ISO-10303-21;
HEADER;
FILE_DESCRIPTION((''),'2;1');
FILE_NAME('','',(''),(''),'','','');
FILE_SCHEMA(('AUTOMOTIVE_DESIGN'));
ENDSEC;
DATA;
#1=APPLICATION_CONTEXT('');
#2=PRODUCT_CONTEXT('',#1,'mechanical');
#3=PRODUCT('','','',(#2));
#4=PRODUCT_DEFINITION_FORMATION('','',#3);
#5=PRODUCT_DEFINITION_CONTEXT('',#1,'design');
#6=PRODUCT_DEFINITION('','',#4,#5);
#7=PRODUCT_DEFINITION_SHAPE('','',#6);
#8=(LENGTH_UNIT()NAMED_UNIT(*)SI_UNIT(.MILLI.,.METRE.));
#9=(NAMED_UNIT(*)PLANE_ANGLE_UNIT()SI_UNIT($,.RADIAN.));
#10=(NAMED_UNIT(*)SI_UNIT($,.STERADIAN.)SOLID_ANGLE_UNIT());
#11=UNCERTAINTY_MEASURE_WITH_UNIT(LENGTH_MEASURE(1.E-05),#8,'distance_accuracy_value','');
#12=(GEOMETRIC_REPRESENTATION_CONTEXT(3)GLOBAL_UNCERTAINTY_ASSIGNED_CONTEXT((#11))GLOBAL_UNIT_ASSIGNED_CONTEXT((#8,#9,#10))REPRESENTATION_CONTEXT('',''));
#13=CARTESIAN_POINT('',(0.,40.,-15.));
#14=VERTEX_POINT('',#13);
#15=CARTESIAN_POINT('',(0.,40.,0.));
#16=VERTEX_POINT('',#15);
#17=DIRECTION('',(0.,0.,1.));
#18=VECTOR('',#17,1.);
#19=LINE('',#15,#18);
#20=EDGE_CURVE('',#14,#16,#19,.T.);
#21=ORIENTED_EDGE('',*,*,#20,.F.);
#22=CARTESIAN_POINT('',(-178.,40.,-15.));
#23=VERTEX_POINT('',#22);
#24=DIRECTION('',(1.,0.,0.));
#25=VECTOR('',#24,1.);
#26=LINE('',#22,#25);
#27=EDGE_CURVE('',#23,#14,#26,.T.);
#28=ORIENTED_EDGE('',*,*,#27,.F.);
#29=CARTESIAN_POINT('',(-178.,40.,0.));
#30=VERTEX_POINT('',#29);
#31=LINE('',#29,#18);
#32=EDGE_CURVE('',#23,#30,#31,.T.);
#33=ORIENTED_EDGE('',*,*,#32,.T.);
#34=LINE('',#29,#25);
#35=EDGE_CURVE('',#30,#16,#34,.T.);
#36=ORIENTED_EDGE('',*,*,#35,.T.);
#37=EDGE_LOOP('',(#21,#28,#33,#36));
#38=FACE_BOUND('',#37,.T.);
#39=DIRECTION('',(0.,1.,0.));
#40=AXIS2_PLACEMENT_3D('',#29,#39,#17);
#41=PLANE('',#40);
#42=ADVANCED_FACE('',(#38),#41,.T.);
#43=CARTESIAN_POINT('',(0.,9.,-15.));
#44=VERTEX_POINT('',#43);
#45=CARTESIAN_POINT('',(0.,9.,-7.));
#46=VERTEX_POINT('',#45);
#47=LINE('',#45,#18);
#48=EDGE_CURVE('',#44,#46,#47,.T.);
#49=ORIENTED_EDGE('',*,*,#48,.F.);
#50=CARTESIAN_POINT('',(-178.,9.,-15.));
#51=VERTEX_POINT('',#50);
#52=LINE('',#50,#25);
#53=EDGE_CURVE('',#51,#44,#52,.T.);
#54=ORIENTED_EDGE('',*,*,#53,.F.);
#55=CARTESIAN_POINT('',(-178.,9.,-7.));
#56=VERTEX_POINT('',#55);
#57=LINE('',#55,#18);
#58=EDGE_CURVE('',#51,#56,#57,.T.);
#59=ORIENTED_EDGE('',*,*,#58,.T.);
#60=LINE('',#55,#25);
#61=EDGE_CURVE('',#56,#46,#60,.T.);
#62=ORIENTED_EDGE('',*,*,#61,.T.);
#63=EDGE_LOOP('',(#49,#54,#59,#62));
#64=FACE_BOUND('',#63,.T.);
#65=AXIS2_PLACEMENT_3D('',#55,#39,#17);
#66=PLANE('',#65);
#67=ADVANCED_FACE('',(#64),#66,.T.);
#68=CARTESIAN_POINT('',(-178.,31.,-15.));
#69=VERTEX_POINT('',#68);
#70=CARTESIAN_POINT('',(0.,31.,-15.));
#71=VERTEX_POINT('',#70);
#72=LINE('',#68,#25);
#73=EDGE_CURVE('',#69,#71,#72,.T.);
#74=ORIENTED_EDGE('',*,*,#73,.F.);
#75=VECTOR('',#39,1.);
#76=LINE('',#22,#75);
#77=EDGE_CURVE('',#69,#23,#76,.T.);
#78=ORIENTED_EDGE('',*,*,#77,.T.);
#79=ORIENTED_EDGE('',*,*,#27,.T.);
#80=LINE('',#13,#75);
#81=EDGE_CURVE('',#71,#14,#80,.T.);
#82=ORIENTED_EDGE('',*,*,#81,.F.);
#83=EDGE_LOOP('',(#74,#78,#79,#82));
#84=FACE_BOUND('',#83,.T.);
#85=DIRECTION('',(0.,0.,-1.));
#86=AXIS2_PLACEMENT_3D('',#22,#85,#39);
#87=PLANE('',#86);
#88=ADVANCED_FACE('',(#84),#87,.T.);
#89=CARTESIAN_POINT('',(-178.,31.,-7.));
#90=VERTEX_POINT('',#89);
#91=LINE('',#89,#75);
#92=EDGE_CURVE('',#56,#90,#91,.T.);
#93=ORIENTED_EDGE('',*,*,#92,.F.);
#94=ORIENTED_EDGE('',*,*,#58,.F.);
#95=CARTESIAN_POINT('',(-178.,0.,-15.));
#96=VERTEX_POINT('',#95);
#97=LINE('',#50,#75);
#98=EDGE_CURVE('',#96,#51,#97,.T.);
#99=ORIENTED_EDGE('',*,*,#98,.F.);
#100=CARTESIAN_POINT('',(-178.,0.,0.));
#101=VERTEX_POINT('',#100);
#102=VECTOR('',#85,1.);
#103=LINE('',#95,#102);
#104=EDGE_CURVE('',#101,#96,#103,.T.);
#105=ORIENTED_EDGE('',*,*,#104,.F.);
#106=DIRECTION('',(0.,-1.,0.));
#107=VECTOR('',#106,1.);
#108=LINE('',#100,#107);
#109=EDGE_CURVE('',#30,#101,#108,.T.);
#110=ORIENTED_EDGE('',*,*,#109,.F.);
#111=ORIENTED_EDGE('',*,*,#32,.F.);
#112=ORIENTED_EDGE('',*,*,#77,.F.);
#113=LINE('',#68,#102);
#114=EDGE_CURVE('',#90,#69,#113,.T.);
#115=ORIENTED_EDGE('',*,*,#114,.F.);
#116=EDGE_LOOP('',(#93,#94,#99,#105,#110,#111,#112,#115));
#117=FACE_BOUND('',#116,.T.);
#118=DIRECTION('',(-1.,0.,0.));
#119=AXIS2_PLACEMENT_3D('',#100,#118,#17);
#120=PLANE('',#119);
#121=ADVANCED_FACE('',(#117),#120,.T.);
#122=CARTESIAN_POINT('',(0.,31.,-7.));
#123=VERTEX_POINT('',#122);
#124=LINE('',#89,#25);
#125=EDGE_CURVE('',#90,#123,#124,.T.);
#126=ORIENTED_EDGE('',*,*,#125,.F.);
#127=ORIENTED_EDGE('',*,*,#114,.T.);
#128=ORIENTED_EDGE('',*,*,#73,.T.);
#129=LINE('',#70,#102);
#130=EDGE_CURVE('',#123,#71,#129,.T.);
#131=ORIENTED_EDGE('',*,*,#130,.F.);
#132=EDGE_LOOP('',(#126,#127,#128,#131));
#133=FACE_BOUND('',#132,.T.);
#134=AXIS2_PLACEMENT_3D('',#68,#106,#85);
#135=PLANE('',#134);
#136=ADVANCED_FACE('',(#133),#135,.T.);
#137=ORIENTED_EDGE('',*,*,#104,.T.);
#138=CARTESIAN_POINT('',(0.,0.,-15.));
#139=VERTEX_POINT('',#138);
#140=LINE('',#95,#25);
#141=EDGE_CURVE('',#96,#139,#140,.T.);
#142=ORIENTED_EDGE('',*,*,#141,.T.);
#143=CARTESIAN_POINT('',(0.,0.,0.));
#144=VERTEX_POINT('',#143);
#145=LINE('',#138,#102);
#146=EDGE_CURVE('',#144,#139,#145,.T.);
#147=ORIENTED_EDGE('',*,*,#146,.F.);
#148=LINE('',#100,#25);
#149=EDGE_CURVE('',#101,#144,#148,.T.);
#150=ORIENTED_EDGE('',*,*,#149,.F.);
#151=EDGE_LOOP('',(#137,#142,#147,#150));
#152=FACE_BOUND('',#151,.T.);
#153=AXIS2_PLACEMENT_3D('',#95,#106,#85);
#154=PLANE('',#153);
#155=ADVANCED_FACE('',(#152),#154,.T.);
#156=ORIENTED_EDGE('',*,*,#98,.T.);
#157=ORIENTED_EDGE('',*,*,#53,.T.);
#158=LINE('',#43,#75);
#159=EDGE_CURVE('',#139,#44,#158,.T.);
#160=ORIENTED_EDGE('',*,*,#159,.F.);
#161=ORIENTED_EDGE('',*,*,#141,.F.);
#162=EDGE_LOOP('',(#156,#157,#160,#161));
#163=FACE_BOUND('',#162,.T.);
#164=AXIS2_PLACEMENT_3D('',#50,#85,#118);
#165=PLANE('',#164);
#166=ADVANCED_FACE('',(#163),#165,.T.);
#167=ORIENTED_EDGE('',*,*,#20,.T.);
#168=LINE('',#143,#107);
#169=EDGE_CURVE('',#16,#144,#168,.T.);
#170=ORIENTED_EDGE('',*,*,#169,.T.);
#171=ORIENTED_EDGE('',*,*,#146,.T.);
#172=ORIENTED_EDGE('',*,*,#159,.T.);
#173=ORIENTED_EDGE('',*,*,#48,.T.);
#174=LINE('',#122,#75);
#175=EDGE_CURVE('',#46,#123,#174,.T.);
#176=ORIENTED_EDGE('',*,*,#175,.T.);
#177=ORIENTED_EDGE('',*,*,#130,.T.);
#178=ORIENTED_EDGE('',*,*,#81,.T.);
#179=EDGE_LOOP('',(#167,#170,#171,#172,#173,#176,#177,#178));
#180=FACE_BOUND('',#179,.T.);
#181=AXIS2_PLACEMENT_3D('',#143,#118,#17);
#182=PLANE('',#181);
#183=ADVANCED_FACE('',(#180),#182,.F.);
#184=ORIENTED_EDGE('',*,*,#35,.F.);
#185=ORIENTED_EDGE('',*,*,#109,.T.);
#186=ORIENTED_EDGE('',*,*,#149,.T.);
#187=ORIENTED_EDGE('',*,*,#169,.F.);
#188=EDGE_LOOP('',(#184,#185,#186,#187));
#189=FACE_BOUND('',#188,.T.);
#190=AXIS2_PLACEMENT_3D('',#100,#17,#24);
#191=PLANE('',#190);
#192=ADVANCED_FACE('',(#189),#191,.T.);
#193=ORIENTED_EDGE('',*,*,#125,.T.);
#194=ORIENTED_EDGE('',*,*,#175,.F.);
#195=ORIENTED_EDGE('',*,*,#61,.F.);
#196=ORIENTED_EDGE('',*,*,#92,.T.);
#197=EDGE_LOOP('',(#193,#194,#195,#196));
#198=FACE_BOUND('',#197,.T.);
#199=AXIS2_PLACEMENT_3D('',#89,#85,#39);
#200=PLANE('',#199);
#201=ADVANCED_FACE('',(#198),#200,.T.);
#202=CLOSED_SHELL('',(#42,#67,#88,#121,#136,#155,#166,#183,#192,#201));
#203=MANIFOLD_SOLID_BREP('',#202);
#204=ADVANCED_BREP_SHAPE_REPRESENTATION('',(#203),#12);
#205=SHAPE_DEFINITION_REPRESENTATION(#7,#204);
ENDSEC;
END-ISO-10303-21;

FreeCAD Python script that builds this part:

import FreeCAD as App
import Part
import Sketcher
from FreeCAD import Vector
Q = App.Units.Quantity

doc = App.newDocument("Part")
params = doc.addObject("Spreadsheet::Sheet", "Params")
for row, (alias, value) in enumerate([
    ("sketch1_width", "40 mm"),
    ("sketch1_width2", "9 mm"),
    ("sketch1_height", "15 mm"),
    ("sketch1_height2", "8 mm"),
    ("pad1_length", "178 mm"),
], start=1):
    params.set(f"A{row}", alias)
    params.set(f"B{row}", "=" + value)
    params.setAlias(f"B{row}", alias)

body = doc.addObject("PartDesign::Body", "Body")

# Sketch on YZ plane
sketch1 = body.newObject("Sketcher::SketchObject", "Sketch")
sketch1.AttachmentSupport = (doc.getObject("YZ_Plane"), [""])
sketch1.MapMode = "FlatFace"
sketch1.addGeometry(Part.LineSegment(Vector(40, 0, 0), Vector(0, 0, 0)), False)
sketch1.addGeometry(Part.LineSegment(Vector(0, 0, 0), Vector(0, -15, 0)), False)
sketch1.addGeometry(Part.LineSegment(Vector(0, -15, 0), Vector(9, -15, 0)), False)
sketch1.addGeometry(Part.LineSegment(Vector(9, -15, 0), Vector(9, -7, 0)), False)
sketch1.addGeometry(Part.LineSegment(Vector(9, -7, 0), Vector(31, -7, 0)), False)
sketch1.addGeometry(Part.LineSegment(Vector(31, -7, 0), Vector(31, -15, 0)), False)
sketch1.addGeometry(Part.LineSegment(Vector(31, -15, 0), Vector(40, -15, 0)), False)
sketch1.addGeometry(Part.LineSegment(Vector(40, -15, 0), Vector(40, 0, 0)), False)
sketch1.addConstraint(Sketcher.Constraint("Coincident", 0, 2, 1, 1))
sketch1.addConstraint(Sketcher.Constraint("Coincident", 1, 2, 2, 1))
sketch1.addConstraint(Sketcher.Constraint("Coincident", 2, 2, 3, 1))
sketch1.addConstraint(Sketcher.Constraint("Coincident", 3, 2, 4, 1))
sketch1.addConstraint(Sketcher.Constraint("Coincident", 4, 2, 5, 1))
sketch1.addConstraint(Sketcher.Constraint("Coincident", 5, 2, 6, 1))
sketch1.addConstraint(Sketcher.Constraint("Coincident", 6, 2, 7, 1))
sketch1.addConstraint(Sketcher.Constraint("Coincident", 7, 2, 0, 1))
sketch1.addConstraint(Sketcher.Constraint("Horizontal", 0))
sketch1.addConstraint(Sketcher.Constraint("Vertical", 1))
sketch1.addConstraint(Sketcher.Constraint("Horizontal", 2))
sketch1.addConstraint(Sketcher.Constraint("Vertical", 3))
sketch1.addConstraint(Sketcher.Constraint("Horizontal", 4))
sketch1.addConstraint(Sketcher.Constraint("Vertical", 5))
sketch1.addConstraint(Sketcher.Constraint("Horizontal", 6))
sketch1.addConstraint(Sketcher.Constraint("Vertical", 7))
sketch1.addConstraint(Sketcher.Constraint("Coincident", 0, 2, -1, 1))
sketch1.addConstraint(Sketcher.Constraint("Horizontal", 2, 2, 5, 2))
sketch1.addConstraint(Sketcher.Constraint("Equal", 2, 6))
sketch1.addConstraint(Sketcher.Constraint("DistanceX", 0, 2, 0, 1, Q("40 mm")))
sketch1.addConstraint(Sketcher.Constraint("DistanceX", 2, 1, 2, 2, Q("9 mm")))
sketch1.addConstraint(Sketcher.Constraint("DistanceY", 1, 2, 1, 1, Q("15 mm")))
sketch1.addConstraint(Sketcher.Constraint("DistanceY", 3, 1, 3, 2, Q("8 mm")))
sketch1.setExpression("Constraints[19]", "Params.sketch1_width")
sketch1.setExpression("Constraints[20]", "Params.sketch1_width2")
sketch1.setExpression("Constraints[21]", "Params.sketch1_height")
sketch1.setExpression("Constraints[22]", "Params.sketch1_height2")
pad1 = body.newObject("PartDesign::Pad", "Pad")
pad1.Profile = sketch1
pad1.setExpression("Length", "Params.pad1_length")
pad1.Reversed = True

doc.recompute()
